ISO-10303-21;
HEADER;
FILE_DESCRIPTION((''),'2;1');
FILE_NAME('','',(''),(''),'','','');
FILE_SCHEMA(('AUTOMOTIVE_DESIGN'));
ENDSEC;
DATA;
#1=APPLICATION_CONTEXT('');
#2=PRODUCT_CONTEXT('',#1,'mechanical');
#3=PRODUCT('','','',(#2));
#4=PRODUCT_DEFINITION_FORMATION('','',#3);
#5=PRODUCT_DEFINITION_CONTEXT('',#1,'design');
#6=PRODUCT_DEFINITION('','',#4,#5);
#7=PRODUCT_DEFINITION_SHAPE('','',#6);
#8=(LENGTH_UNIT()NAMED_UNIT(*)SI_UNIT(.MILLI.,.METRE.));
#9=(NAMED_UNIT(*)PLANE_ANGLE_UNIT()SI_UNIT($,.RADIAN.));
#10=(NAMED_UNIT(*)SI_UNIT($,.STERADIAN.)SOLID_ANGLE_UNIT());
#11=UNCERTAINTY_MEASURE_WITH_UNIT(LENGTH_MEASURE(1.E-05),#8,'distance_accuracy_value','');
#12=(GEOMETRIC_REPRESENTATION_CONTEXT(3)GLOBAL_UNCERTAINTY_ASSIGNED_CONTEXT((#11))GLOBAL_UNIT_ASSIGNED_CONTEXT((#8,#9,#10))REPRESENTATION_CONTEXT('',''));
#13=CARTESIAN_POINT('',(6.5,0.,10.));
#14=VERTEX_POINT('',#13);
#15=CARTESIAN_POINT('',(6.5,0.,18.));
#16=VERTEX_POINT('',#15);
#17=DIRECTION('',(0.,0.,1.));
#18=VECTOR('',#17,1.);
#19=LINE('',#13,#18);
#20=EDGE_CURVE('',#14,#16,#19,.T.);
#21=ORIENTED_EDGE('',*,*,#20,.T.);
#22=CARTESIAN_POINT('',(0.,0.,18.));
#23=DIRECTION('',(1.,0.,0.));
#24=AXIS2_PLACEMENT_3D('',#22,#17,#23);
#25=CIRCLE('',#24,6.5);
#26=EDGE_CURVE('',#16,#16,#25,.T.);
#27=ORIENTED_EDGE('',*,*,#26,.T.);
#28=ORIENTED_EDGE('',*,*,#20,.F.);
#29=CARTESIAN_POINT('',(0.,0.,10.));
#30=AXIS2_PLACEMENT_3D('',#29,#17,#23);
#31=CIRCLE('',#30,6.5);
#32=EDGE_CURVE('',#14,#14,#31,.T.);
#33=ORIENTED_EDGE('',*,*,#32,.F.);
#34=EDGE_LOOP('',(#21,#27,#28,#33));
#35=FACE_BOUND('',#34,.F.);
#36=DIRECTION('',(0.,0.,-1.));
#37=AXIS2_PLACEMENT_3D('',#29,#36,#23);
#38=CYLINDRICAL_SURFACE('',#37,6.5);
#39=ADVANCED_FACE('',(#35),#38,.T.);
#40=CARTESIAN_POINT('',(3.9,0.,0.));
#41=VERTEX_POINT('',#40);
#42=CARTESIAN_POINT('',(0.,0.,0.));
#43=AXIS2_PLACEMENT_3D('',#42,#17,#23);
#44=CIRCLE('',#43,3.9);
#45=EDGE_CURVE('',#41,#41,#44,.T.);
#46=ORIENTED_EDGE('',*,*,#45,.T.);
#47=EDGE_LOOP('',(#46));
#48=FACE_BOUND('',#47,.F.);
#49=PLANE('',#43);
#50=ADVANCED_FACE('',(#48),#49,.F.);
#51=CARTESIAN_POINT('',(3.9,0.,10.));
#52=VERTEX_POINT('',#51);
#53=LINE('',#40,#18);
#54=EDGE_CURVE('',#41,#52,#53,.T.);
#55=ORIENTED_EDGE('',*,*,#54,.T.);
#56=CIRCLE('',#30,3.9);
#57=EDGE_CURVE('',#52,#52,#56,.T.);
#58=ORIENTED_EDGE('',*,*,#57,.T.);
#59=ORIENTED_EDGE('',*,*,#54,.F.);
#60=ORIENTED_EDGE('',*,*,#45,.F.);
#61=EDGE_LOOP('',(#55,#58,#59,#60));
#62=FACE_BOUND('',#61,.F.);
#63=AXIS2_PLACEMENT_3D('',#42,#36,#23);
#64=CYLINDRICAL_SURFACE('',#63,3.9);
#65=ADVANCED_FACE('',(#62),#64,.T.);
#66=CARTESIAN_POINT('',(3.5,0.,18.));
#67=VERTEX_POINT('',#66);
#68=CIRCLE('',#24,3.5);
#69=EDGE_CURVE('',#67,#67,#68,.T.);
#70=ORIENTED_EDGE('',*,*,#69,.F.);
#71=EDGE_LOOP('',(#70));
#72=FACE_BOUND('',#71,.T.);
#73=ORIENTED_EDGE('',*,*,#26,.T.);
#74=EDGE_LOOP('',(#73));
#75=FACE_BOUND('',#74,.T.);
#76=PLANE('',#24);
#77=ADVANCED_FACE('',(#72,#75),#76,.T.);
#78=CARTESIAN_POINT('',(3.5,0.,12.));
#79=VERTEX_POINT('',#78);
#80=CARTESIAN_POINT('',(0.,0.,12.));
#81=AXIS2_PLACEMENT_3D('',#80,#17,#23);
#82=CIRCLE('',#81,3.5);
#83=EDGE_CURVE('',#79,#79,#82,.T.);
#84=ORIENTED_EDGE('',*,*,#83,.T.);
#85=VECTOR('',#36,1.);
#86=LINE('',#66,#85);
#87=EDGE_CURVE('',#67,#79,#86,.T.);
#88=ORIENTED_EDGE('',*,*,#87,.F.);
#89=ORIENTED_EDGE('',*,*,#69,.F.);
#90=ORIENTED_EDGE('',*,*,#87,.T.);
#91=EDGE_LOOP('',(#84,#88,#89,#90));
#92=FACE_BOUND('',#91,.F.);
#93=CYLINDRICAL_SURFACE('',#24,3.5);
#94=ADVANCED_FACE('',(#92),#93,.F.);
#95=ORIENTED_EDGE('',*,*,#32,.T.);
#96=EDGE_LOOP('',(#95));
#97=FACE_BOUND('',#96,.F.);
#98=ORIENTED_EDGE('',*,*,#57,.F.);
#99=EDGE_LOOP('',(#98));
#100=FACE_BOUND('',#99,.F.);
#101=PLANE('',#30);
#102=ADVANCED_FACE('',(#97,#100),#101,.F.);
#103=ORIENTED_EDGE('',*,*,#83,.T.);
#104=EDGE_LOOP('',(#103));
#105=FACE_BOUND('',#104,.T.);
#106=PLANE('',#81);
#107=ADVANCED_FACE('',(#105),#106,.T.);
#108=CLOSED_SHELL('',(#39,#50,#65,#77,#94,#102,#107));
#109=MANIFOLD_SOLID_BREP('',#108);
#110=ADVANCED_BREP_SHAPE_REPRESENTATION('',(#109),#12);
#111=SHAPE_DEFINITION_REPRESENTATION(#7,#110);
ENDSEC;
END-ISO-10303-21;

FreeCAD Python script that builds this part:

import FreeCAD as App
import Part
import Sketcher

V = App.Vector

doc = App.newDocument("Part")
body = doc.addObject("PartDesign::Body", "Body")

# Sketch on XY plane
sketch1 = body.newObject("Sketcher::SketchObject", "Sketch")
sketch1.AttachmentSupport = (doc.getObject("XY_Plane"), [""])
sketch1.MapMode = "FlatFace"
sketch1.addGeometry(Part.Circle(V(0, 0, 0), V(0, 0, 1), 3.9), False)
sketch1.addConstraint(Sketcher.Constraint("Coincident", 0, 3, -1, 1))
sketch1.addConstraint(Sketcher.Constraint("Diameter", 0, 7.8))
pad1 = body.newObject("PartDesign::Pad", "Pad")
pad1.Profile = sketch1
pad1.Length = 10

# Sketch on XY plane
sketch2 = body.newObject("Sketcher::SketchObject", "Sketch001")
sketch2.AttachmentSupport = (doc.getObject("XY_Plane"), [""])
sketch2.MapMode = "FlatFace"
sketch2.AttachmentOffset = App.Placement(V(0, 0, 10), App.Rotation())
sketch2.addGeometry(Part.Circle(V(0, 0, 0), V(0, 0, 1), 6), False)
sketch2.addConstraint(Sketcher.Constraint("Coincident", 0, 3, -1, 1))
sketch2.addConstraint(Sketcher.Constraint("Diameter", 0, 13.0))
pad2 = body.newObject("PartDesign::Pad", "Pad001")
pad2.Profile = sketch2
pad2.Length = 8

# Sketch on XY plane
sketch3 = body.newObject("Sketcher::SketchObject", "Sketch002")
sketch3.AttachmentSupport = (doc.getObject("XY_Plane"), [""])
sketch3.MapMode = "FlatFace"
sketch3.AttachmentOffset = App.Placement(V(0, 0, 18), App.Rotation())
sketch3.addGeometry(Part.Circle(V(0, 0, 0), V(0, 0, 1), 3.5), False)
sketch3.addConstraint(Sketcher.Constraint("Coincident", 0, 3, -1, 1))
sketch3.addConstraint(Sketcher.Constraint("Diameter", 0, 7.0))
pocket1 = body.newObject("PartDesign::Pocket", "Pocket")
pocket1.Profile = sketch3
pocket1.Length = 6

doc.recompute()
